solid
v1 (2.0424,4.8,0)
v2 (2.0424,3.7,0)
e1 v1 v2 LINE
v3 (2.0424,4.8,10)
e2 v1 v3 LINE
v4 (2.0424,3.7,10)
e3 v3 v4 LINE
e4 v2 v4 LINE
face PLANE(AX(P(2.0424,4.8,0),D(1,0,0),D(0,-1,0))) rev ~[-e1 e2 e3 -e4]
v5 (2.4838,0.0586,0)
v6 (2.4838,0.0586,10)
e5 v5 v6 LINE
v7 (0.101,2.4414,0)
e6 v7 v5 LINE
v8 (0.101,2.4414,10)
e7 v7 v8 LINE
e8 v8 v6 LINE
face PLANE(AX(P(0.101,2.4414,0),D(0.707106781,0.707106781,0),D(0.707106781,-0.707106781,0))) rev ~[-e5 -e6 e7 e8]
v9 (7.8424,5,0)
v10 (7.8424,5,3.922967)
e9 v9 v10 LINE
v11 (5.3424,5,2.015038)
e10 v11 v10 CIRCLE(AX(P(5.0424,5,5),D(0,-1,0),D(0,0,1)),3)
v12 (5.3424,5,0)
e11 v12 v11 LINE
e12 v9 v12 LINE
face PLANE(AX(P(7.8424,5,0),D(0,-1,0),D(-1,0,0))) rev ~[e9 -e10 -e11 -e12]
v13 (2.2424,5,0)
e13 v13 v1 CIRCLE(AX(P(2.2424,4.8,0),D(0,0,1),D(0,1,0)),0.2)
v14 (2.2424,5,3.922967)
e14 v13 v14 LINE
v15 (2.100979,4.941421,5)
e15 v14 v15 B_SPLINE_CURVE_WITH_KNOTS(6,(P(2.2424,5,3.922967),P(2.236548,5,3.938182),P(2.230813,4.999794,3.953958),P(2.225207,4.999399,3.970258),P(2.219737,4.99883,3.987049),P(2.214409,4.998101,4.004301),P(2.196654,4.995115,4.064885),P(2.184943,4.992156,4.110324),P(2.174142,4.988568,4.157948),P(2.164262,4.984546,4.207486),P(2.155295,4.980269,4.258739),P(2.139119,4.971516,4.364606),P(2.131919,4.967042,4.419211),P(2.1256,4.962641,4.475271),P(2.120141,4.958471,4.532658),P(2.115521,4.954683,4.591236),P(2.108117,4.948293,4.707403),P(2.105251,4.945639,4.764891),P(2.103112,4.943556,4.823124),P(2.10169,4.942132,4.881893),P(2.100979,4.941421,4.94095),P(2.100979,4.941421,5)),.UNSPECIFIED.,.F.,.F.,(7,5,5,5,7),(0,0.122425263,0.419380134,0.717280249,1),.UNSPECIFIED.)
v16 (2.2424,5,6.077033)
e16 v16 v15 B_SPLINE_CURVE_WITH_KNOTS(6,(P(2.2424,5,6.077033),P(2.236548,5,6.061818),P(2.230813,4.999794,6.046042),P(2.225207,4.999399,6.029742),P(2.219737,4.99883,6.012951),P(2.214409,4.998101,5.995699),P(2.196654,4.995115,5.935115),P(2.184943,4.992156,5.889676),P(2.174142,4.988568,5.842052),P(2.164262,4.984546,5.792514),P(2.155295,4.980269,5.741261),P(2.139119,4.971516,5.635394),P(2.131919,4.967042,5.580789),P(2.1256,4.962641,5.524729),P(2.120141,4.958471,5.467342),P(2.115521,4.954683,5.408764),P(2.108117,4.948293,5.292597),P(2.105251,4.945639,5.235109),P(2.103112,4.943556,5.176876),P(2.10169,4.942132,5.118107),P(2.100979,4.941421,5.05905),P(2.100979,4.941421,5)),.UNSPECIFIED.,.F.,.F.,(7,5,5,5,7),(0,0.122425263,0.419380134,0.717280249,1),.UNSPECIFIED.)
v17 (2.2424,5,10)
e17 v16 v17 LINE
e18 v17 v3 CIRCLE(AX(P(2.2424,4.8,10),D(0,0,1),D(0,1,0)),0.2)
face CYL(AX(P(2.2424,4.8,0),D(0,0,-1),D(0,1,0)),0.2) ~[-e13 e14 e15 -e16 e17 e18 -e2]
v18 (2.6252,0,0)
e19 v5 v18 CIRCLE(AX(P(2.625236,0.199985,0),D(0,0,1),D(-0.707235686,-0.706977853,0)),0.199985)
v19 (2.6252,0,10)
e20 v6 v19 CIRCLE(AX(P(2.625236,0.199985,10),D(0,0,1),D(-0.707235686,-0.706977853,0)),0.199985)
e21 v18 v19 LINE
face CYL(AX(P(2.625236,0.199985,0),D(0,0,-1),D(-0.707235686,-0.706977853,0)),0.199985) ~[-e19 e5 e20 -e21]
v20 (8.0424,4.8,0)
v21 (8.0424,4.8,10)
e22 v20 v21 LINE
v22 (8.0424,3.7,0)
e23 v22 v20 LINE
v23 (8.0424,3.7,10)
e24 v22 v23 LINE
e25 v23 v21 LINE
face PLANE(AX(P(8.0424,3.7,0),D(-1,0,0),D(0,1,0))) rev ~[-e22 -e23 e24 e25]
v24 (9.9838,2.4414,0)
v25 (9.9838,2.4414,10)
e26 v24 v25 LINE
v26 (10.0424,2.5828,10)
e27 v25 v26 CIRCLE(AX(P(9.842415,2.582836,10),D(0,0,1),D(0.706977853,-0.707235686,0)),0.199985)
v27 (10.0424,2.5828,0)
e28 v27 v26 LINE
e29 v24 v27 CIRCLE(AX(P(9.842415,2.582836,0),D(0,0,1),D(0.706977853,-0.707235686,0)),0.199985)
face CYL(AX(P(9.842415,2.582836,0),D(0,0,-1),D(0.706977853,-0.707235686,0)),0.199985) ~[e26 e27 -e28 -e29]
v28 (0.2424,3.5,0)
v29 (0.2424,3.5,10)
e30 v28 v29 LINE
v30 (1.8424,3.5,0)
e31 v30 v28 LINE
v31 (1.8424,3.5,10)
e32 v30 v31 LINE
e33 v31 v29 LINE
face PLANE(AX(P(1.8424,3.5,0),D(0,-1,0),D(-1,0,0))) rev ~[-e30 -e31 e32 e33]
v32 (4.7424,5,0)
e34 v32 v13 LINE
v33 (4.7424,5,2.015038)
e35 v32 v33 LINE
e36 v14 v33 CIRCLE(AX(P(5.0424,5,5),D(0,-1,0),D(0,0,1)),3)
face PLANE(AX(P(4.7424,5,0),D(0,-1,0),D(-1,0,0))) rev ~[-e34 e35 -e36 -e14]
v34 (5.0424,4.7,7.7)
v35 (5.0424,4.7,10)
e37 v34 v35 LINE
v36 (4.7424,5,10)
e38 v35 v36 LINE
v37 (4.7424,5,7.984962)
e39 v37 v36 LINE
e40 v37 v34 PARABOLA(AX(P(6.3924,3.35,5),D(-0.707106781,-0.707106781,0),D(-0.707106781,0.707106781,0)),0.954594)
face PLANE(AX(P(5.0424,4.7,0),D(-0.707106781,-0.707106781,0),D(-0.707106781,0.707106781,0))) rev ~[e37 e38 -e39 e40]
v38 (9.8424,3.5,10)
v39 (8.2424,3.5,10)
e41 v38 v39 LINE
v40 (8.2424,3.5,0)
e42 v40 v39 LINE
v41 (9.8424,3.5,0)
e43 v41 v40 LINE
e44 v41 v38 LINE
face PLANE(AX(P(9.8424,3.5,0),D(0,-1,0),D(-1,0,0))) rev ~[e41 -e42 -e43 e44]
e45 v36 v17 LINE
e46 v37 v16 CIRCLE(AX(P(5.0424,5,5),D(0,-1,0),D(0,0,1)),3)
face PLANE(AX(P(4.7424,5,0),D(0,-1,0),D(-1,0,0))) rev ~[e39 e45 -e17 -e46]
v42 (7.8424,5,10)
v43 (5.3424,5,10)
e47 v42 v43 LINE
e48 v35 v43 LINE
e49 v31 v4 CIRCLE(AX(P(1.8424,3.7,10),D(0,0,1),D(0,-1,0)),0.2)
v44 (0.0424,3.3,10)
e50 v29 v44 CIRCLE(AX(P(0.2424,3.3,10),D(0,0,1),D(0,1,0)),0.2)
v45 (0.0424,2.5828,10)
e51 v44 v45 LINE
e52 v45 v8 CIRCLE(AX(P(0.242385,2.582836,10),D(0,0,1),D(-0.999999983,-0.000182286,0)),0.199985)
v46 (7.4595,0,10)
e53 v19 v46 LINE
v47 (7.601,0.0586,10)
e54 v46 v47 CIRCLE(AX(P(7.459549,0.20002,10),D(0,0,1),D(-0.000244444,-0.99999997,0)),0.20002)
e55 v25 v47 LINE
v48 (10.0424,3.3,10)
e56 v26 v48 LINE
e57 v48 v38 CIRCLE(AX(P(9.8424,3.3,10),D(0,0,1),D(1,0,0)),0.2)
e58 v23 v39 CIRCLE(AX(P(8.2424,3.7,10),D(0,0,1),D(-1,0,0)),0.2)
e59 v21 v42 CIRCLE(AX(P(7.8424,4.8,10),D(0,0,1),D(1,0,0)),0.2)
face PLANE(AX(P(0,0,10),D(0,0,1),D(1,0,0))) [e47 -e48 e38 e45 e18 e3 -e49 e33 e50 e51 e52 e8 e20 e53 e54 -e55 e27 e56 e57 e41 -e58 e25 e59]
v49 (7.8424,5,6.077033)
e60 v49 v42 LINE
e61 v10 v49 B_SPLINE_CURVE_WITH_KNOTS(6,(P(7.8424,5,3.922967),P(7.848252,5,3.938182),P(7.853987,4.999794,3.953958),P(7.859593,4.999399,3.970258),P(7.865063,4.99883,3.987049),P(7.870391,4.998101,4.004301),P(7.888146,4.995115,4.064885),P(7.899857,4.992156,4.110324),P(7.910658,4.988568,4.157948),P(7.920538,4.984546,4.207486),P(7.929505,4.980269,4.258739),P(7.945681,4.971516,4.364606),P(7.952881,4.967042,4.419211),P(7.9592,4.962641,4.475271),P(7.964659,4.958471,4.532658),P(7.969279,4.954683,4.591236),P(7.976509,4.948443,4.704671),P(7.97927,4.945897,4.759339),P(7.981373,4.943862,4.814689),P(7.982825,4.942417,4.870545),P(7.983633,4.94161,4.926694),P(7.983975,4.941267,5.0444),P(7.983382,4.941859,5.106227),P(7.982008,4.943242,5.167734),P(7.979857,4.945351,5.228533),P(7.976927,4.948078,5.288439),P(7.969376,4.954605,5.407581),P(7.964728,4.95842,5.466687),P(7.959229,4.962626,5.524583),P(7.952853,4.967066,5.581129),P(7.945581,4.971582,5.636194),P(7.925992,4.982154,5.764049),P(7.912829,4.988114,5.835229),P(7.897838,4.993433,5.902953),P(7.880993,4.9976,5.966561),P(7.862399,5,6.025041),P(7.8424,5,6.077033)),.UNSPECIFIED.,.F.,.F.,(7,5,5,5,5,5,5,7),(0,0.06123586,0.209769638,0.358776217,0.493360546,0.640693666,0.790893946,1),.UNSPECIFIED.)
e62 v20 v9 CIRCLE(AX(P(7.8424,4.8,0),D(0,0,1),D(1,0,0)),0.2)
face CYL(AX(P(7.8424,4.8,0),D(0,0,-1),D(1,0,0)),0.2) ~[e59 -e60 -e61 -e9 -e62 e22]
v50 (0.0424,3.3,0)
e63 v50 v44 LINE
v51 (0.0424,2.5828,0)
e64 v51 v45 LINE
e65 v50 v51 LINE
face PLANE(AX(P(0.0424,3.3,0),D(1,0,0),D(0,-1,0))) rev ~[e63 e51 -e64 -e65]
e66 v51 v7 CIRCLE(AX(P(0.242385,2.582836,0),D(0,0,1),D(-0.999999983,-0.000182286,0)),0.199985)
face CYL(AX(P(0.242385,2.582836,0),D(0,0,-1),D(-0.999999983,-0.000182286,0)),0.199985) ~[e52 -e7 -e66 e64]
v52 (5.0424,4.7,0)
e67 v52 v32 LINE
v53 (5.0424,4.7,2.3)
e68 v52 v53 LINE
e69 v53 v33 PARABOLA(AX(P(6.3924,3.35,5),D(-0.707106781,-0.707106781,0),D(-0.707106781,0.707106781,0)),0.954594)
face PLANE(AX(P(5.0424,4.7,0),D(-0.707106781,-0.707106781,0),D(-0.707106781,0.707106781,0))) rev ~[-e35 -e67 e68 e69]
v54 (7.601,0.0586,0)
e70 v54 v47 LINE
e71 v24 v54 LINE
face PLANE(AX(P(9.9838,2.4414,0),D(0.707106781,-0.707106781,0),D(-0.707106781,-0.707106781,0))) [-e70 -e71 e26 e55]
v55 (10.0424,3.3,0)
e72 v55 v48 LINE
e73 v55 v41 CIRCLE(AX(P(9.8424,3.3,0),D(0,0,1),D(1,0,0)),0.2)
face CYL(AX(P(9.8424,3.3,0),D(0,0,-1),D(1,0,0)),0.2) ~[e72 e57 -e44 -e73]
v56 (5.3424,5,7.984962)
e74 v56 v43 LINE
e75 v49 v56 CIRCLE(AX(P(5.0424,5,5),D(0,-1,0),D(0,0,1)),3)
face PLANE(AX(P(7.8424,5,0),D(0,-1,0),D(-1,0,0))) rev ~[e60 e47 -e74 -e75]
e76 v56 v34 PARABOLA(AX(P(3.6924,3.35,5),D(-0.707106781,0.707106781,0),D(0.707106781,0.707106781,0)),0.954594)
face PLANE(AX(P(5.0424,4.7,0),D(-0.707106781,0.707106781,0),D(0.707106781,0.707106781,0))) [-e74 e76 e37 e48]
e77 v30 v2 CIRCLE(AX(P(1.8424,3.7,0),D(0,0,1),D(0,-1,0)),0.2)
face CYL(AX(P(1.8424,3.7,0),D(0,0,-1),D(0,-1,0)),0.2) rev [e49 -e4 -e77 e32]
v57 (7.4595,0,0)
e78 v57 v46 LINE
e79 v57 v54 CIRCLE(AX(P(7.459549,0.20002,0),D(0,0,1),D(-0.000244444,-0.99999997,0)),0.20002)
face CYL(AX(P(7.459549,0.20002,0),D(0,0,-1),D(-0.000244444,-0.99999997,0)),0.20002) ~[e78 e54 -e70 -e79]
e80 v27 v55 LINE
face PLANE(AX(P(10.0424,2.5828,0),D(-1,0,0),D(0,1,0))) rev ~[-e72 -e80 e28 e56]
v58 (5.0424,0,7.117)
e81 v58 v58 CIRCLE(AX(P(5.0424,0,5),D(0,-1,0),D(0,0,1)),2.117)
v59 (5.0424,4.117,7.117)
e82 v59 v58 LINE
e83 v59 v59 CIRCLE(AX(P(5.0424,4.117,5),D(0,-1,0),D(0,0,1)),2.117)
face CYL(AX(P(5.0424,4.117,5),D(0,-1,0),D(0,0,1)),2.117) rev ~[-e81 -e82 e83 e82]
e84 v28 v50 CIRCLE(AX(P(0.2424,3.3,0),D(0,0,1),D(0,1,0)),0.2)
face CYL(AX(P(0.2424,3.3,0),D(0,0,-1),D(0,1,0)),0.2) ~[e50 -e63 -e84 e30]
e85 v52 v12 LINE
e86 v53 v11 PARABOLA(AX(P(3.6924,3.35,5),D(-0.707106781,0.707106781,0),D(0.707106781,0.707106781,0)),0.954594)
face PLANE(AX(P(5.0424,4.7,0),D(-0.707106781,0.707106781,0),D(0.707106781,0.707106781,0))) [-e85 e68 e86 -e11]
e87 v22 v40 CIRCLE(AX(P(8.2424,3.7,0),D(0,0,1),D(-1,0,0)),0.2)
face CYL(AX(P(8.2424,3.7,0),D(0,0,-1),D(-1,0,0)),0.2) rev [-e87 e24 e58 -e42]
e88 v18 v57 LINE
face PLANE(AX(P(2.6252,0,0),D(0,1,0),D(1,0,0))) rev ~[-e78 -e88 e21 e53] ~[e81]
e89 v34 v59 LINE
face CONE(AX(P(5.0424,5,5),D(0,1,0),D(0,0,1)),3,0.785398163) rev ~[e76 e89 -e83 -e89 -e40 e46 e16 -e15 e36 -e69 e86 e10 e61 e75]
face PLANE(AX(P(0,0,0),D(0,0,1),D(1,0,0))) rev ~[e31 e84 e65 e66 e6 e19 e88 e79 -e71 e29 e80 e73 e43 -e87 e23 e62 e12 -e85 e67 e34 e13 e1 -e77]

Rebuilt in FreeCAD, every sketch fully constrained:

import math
import FreeCAD as App
import Part
import Sketcher

doc = App.newDocument("Part")
params = doc.addObject("Spreadsheet::Sheet", "Params")
for row, (alias, value) in enumerate([
    ("sketch1_radius", "0.2 mm"),
    ("pad1_length", "10 mm"),
    ("hole_diameter", "4.234 mm"),
    ("hole_depth", "5.834 mm"),
    ("hole_csink_diameter", "6 mm"),
], start=1):
    params.set(f"A{row}", alias)
    params.set(f"B{row}", "=" + value)
    params.setAlias(f"B{row}", alias)

body = doc.addObject("PartDesign::Body", "Body")

sketch1 = body.newObject("Sketcher::SketchObject", "Sketch")
sketch1.AttachmentSupport = (doc.getObject("XY_Plane"), [""])
sketch1.MapMode = "FlatFace"
sketch1.addGeometry(Part.ArcOfCircle(Part.Circle(App.Vector(2.63, 0.2, 0), App.Vector(0, 0, 1), 0.2), math.radians(-135), math.radians(-90)), False)
sketch1.addGeometry(Part.LineSegment(App.Vector(2.63, 0, 0), App.Vector(7.46, 0, 0)), False)
sketch1.addGeometry(Part.ArcOfCircle(Part.Circle(App.Vector(7.46, 0.2, 0), App.Vector(0, 0, 1), 0.2), math.radians(-90), math.radians(-45)), False)
sketch1.addGeometry(Part.LineSegment(App.Vector(7.6, 0.06, 0), App.Vector(9.98, 2.44, 0)), False)
sketch1.addGeometry(Part.ArcOfCircle(Part.Circle(App.Vector(9.84, 2.58, 0), App.Vector(0, 0, 1), 0.2), math.radians(-45), math.radians(0)), False)
sketch1.addGeometry(Part.LineSegment(App.Vector(10.04, 2.58, 0), App.Vector(10.04, 3.3, 0)), False)
sketch1.addGeometry(Part.ArcOfCircle(Part.Circle(App.Vector(9.84, 3.3, 0), App.Vector(0, 0, 1), 0.2), math.radians(0), math.radians(90)), False)
sketch1.addGeometry(Part.LineSegment(App.Vector(9.84, 3.5, 0), App.Vector(8.24, 3.5, 0)), False)
sketch1.addGeometry(Part.ArcOfCircle(Part.Circle(App.Vector(8.24, 3.7, 0), App.Vector(0, 0, 1), 0.2), math.radians(180), math.radians(270)), False)
sketch1.addGeometry(Part.LineSegment(App.Vector(8.04, 3.7, 0), App.Vector(8.04, 4.8, 0)), False)
sketch1.addGeometry(Part.ArcOfCircle(Part.Circle(App.Vector(7.84, 4.8, 0), App.Vector(0, 0, 1), 0.2), math.radians(0), math.radians(90)), False)
sketch1.addGeometry(Part.LineSegment(App.Vector(7.84, 5, 0), App.Vector(5.34, 5, 0)), False)
sketch1.addGeometry(Part.LineSegment(App.Vector(5.34, 5, 0), App.Vector(5.04, 4.7, 0)), False)
sketch1.addGeometry(Part.LineSegment(App.Vector(5.04, 4.7, 0), App.Vector(4.74, 5, 0)), False)
sketch1.addGeometry(Part.LineSegment(App.Vector(4.74, 5, 0), App.Vector(2.24, 5, 0)), False)
sketch1.addGeometry(Part.ArcOfCircle(Part.Circle(App.Vector(2.24, 4.8, 0), App.Vector(0, 0, 1), 0.2), math.radians(90), math.radians(180)), False)
sketch1.addGeometry(Part.LineSegment(App.Vector(2.04, 4.8, 0), App.Vector(2.04, 3.7, 0)), False)
sketch1.addGeometry(Part.ArcOfCircle(Part.Circle(App.Vector(1.84, 3.7, 0), App.Vector(0, 0, 1), 0.2), math.radians(-90), math.radians(0)), False)
sketch1.addGeometry(Part.LineSegment(App.Vector(1.84, 3.5, 0), App.Vector(0.24, 3.5, 0)), False)
sketch1.addGeometry(Part.ArcOfCircle(Part.Circle(App.Vector(0.24, 3.3, 0), App.Vector(0, 0, 1), 0.2), math.radians(90), math.radians(180)), False)
sketch1.addGeometry(Part.LineSegment(App.Vector(0.04, 3.3, 0), App.Vector(0.04, 2.58, 0)), False)
sketch1.addGeometry(Part.ArcOfCircle(Part.Circle(App.Vector(0.24, 2.58, 0), App.Vector(0, 0, 1), 0.2), math.radians(180), math.radians(225)), False)
sketch1.addGeometry(Part.LineSegment(App.Vector(0.1, 2.44, 0), App.Vector(2.48, 0.06, 0)), False)
sketch1.addConstraint(Sketcher.Constraint("Tangent", 0, 2, 1, 1))
sketch1.addConstraint(Sketcher.Constraint("Tangent", 1, 2, 2, 1))
sketch1.addConstraint(Sketcher.Constraint("Tangent", 2, 2, 3, 1))
sketch1.addConstraint(Sketcher.Constraint("Tangent", 3, 2, 4, 1))
sketch1.addConstraint(Sketcher.Constraint("Tangent", 4, 2, 5, 1))
sketch1.addConstraint(Sketcher.Constraint("Tangent", 5, 2, 6, 1))
sketch1.addConstraint(Sketcher.Constraint("Tangent", 6, 2, 7, 1))
sketch1.addConstraint(Sketcher.Constraint("Tangent", 7, 2, 8, 2))
sketch1.addConstraint(Sketcher.Constraint("Tangent", 8, 1, 9, 1))
sketch1.addConstraint(Sketcher.Constraint("Tangent", 9, 2, 10, 1))
sketch1.addConstraint(Sketcher.Constraint("Tangent", 10, 2, 11, 1))
sketch1.addConstraint(Sketcher.Constraint("Coincident", 11, 2, 12, 1))
sketch1.addConstraint(Sketcher.Constraint("Coincident", 12, 2, 13, 1))
sketch1.addConstraint(Sketcher.Constraint("Coincident", 13, 2, 14, 1))
sketch1.addConstraint(Sketcher.Constraint("Tangent", 14, 2, 15, 1))
sketch1.addConstraint(Sketcher.Constraint("Tangent", 15, 2, 16, 1))
sketch1.addConstraint(Sketcher.Constraint("Tangent", 16, 2, 17, 2))
sketch1.addConstraint(Sketcher.Constraint("Tangent", 17, 1, 18, 1))
sketch1.addConstraint(Sketcher.Constraint("Tangent", 18, 2, 19, 1))
sketch1.addConstraint(Sketcher.Constraint("Tangent", 19, 2, 20, 1))
sketch1.addConstraint(Sketcher.Constraint("Tangent", 20, 2, 21, 1))
sketch1.addConstraint(Sketcher.Constraint("Tangent", 21, 2, 22, 1))
sketch1.addConstraint(Sketcher.Constraint("Tangent", 22, 2, 0, 1))
sketch1.addConstraint(Sketcher.Constraint("Horizontal", 1))
sketch1.addConstraint(Sketcher.Constraint("Vertical", 5))
sketch1.addConstraint(Sketcher.Constraint("Horizontal", 7))
sketch1.addConstraint(Sketcher.Constraint("Vertical", 9))
sketch1.addConstraint(Sketcher.Constraint("Horizontal", 11))
sketch1.addConstraint(Sketcher.Constraint("Horizontal", 14))
sketch1.addConstraint(Sketcher.Constraint("Vertical", 16))
sketch1.addConstraint(Sketcher.Constraint("Horizontal", 18))
sketch1.addConstraint(Sketcher.Constraint("Vertical", 20))
sketch1.addConstraint(Sketcher.Constraint("Equal", 0, 2))
sketch1.addConstraint(Sketcher.Constraint("Equal", 2, 4))
sketch1.addConstraint(Sketcher.Constraint("Equal", 4, 6))
sketch1.addConstraint(Sketcher.Constraint("Equal", 6, 8))
sketch1.addConstraint(Sketcher.Constraint("Equal", 8, 10))
sketch1.addConstraint(Sketcher.Constraint("Equal", 10, 15))
sketch1.addConstraint(Sketcher.Constraint("Equal", 15, 17))
sketch1.addConstraint(Sketcher.Constraint("Equal", 17, 19))
sketch1.addConstraint(Sketcher.Constraint("Equal", 19, 21))
sketch1.addConstraint(Sketcher.Constraint("PointOnObject", 0, 2, -1))
sketch1.addConstraint(Sketcher.Constraint("Parallel", 3, 12))
sketch1.addConstraint(Sketcher.Constraint("Perpendicular", 12, 13))
sketch1.addConstraint(Sketcher.Constraint("Parallel", 13, 22))
sketch1.addConstraint(Sketcher.Constraint("Horizontal", 10, 3, 15, 3))
sketch1.addConstraint(Sketcher.Constraint("Horizontal", 8, 3, 17, 3))
sketch1.addConstraint(Sketcher.Constraint("Horizontal", 4, 3, 21, 3))
sketch1.addConstraint(Sketcher.Constraint("Horizontal", 3, 2, 21, 2))
sketch1.addConstraint(Sketcher.Constraint("Equal", 11, 14))
sketch1.addConstraint(Sketcher.Constraint("Equal", 7, 18))
sketch1.addConstraint(Sketcher.Constraint("Radius", 0, 0.2))
sketch1.addConstraint(Sketcher.Constraint("DistanceY", -1, 1, 10, 2, 5.0))
sketch1.addConstraint(Sketcher.Constraint("DistanceX", 10, 3, 6, 3, 2.0))
sketch1.addConstraint(Sketcher.Constraint("DistanceX", 15, 3, 8, 3, 6.0))
sketch1.addConstraint(Sketcher.Constraint("DistanceY", 6, 3, 10, 3, 1.5))
sketch1.addConstraint(Sketcher.Constraint("DistanceX", 12, 2, 11, 2, 0.3))
sketch1.addConstraint(Sketcher.Constraint("DistanceX", 1, 1, 1, 2, 4.8343))
sketch1.addConstraint(Sketcher.Constraint("DistanceX", -1, 1, 2, 2, 7.601))
sketch1.setExpression("Constraints[51]", "Params.sketch1_radius")
pad1 = body.newObject("PartDesign::Pad", "Pad")
pad1.Profile = sketch1
pad1.setExpression("Length", "Params.pad1_length")

sketch2 = body.newObject("Sketcher::SketchObject", "Sketch001")
sketch2.AttachmentSupport = (doc.getObject("XZ_Plane"), [""])
sketch2.MapMode = "FlatFace"
sketch2.AttachmentOffset = App.Placement(App.Vector(0, 0, -5), App.Rotation())
sketch2.addGeometry(Part.Circle(App.Vector(5, 5, 0), App.Vector(0, 0, 1), 2.1), False)
sketch2.addConstraint(Sketcher.Constraint("Diameter", 0, 4.234))
sketch2.addConstraint(Sketcher.Constraint("DistanceY", -1, 1, 0, 3, 5.0))
sketch2.addConstraint(Sketcher.Constraint("DistanceX", -1, 1, 0, 3, 5.0424))
doc.recompute()
hole = body.newObject("PartDesign::Hole", "Hole")
hole.Profile = sketch2
hole.ThreadType = "None"
hole.setExpression("Diameter", "Params.hole_diameter")
hole.DepthType = "Dimension"
hole.setExpression("Depth", "Params.hole_depth")
hole.DrillPoint = "Flat"
hole.HoleCutType = "Countersink"
hole.setExpression("HoleCutDiameter", "Params.hole_csink_diameter")
hole.HoleCutCountersinkAngle = 90
hole.Reversed = True

doc.recompute()
